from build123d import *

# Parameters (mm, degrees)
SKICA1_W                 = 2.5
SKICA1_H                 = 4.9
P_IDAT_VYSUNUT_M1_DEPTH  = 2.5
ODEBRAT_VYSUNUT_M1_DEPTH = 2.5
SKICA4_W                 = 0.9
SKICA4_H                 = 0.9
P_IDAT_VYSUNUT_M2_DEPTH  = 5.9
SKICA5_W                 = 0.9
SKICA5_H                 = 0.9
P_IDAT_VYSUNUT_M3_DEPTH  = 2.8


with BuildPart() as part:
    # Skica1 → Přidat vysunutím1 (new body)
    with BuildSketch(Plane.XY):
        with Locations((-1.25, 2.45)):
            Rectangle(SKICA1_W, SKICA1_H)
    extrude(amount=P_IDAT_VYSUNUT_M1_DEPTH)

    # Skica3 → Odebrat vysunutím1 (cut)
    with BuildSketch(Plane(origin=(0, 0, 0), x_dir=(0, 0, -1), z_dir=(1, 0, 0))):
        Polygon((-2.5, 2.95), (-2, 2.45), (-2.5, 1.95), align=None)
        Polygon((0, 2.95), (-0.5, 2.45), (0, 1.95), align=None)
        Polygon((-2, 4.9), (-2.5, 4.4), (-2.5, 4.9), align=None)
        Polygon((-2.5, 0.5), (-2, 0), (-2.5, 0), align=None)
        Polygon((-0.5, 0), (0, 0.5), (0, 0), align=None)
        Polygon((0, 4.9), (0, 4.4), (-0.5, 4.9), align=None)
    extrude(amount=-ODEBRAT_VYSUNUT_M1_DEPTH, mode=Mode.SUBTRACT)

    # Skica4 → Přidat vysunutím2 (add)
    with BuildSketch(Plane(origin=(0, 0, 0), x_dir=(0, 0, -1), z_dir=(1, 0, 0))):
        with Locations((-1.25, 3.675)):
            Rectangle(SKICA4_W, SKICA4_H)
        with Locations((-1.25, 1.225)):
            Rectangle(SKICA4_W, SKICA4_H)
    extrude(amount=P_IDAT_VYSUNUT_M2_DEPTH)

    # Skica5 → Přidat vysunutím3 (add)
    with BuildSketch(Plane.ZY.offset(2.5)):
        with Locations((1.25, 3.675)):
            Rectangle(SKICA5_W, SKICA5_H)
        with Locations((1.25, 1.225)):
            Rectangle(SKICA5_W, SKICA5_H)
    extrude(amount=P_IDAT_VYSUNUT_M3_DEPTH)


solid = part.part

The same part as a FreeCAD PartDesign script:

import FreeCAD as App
import Part
import Sketcher


def add_polygon(sketch, points):
    """Adds a closed chain of lines whose ends are joined by coincident constraints."""
    first, n = sketch.GeometryCount, len(points)
    for a, b in zip(points, points[1:] + points[:1]):
        sketch.addGeometry(Part.LineSegment(App.Vector(*a, 0), App.Vector(*b, 0)), False)
    for i in range(n):
        sketch.addConstraint(Sketcher.Constraint("Coincident", first + i, 2, first + (i + 1) % n, 1))

doc = App.newDocument("Part")
body = doc.addObject("PartDesign::Body", "Body")

# Sketch on XY plane
sketch1 = doc.addObject("Sketcher::SketchObject", "Sketch")
body.addObject(sketch1)
sketch1.AttachmentSupport = (doc.XY_Plane, [""])
sketch1.MapMode = "FlatFace"
add_polygon(sketch1, [(-2.5, 4.9), (-2.5, 0), (0, 0), (0, 4.9)])  # lines 0-3
sketch1.addConstraint([
    Sketcher.Constraint("Vertical", 0),
    Sketcher.Constraint("Horizontal", 1),
    Sketcher.Constraint("Vertical", 2),
    Sketcher.Constraint("Horizontal", 3),
    Sketcher.Constraint("Coincident", 1, 2, -1, 1),
    Sketcher.Constraint("DistanceX", 1, 1, 1, 2, 2.5),
    Sketcher.Constraint("DistanceY", 0, 2, 0, 1, 4.9),
])
pad1 = doc.addObject("PartDesign::Pad", "Pad")
body.addObject(pad1)
pad1.Profile = sketch1
pad1.Length = 2.5

# Sketch on YZ plane
sketch2 = doc.addObject("Sketcher::SketchObject", "Sketch001")
body.addObject(sketch2)
sketch2.AttachmentSupport = (doc.YZ_Plane, [""])
sketch2.MapMode = "FlatFace"
add_polygon(sketch2, [(2.45, 2), (2.95, 2.5), (1.95, 2.5)])  # lines 0-2
add_polygon(sketch2, [(2.95, 0), (2.45, 0.5), (1.95, 0)])  # lines 3-5
add_polygon(sketch2, [(4.4, 2.5), (4.9, 2), (4.9, 2.5)])  # lines 6-8
add_polygon(sketch2, [(0, 2), (0.5, 2.5), (0, 2.5)])  # lines 9-11
add_polygon(sketch2, [(0.5, 0), (0, 0.5), (0, 0)])  # lines 12-14
add_polygon(sketch2, [(4.4, 0), (4.9, 0), (4.9, 0.5)])  # lines 15-17
sketch2.addConstraint([
    Sketcher.Constraint("Horizontal", 1),
    Sketcher.Constraint("Horizontal", 5),
    Sketcher.Constraint("Vertical", 7),
    Sketcher.Constraint("Horizontal", 8),
    Sketcher.Constraint("Horizontal", 10),
    Sketcher.Constraint("Vertical", 11),
    Sketcher.Constraint("Vertical", 13),
    Sketcher.Constraint("Horizontal", 14),
    Sketcher.Constraint("Horizontal", 15),
    Sketcher.Constraint("Vertical", 16),
    Sketcher.Constraint("Coincident", 13, 2, -1, 1),
    Sketcher.Constraint("PointOnObject", 4, 2, -1),
    Sketcher.Constraint("PointOnObject", 10, 2, -2),
    Sketcher.Constraint("PointOnObject", 15, 2, -1),
    Sketcher.Constraint("Perpendicular", 0, 2),
    Sketcher.Constraint("Parallel", 2, 3),
    Sketcher.Constraint("Perpendicular", 3, 4),
    Sketcher.Constraint("Perpendicular", 4, 6),
    Sketcher.Constraint("Perpendicular", 6, 9),
    Sketcher.Constraint("Perpendicular", 9, 12),
    Sketcher.Constraint("Perpendicular", 12, 17),
    Sketcher.Constraint("Horizontal", 2, 2, 6, 2),
    Sketcher.Constraint("Horizontal", 1, 2, 7, 2),
    Sketcher.Constraint("Horizontal", 8, 2, 9, 2),
    Sketcher.Constraint("Horizontal", 6, 2, 11, 2),
    Sketcher.Constraint("Horizontal", 3, 2, 12, 2),
    Sketcher.Constraint("Horizontal", 12, 2, 16, 2),
    Sketcher.Constraint("Vertical", 2, 2, 3, 2),
    Sketcher.Constraint("Vertical", 1, 2, 4, 2),
    Sketcher.Constraint("Vertical", 0, 2, 5, 2),
    Sketcher.Constraint("Vertical", 7, 2, 15, 2),
    Sketcher.Constraint("DistanceX", 1, 2, 1, 1, 1.0),
    Sketcher.Constraint("DistanceY", -1, 1, 2, 2, 2.0),
    Sketcher.Constraint("DistanceX", -1, 1, 6, 2, 4.9),
    Sketcher.Constraint("DistanceX", -1, 1, 0, 2, 2.95),
])
pocket1 = doc.addObject("PartDesign::Pocket", "Pocket")
body.addObject(pocket1)
pocket1.Profile = sketch2
pocket1.Length = 2.5

# Sketch on YZ plane
sketch3 = doc.addObject("Sketcher::SketchObject", "Sketch002")
body.addObject(sketch3)
sketch3.AttachmentSupport = (doc.YZ_Plane, [""])
sketch3.MapMode = "FlatFace"
add_polygon(sketch3, [(4.125, 1.7), (3.225, 1.7), (3.225, 0.8), (4.125, 0.8)])  # lines 0-3
add_polygon(sketch3, [(1.675, 1.7), (0.775, 1.7), (0.775, 0.8), (1.675, 0.8)])  # lines 4-7
sketch3.addConstraint([
    Sketcher.Constraint("Horizontal", 0),
    Sketcher.Constraint("Vertical", 1),
    Sketcher.Constraint("Horizontal", 2),
    Sketcher.Constraint("Vertical", 3),
    Sketcher.Constraint("Horizontal", 4),
    Sketcher.Constraint("Vertical", 5),
    Sketcher.Constraint("Horizontal", 6),
    Sketcher.Constraint("Vertical", 7),
    Sketcher.Constraint("Horizontal", 3, 2, 4, 2),
    Sketcher.Constraint("Horizontal", 2, 2, 5, 2),
    Sketcher.Constraint("Equal", 2, 4),
    Sketcher.Constraint("Equal", 6, 1),
    Sketcher.Constraint("DistanceX", 0, 2, 0, 1, 0.9),
    Sketcher.Constraint("DistanceY", -1, 1, 0, 2, 1.7),
    Sketcher.Constraint("DistanceX", 4, 2, 0, 2, 2.45),
    Sketcher.Constraint("DistanceX", -1, 1, 0, 2, 3.225),
])
pad2 = doc.addObject("PartDesign::Pad", "Pad001")
body.addObject(pad2)
pad2.Profile = sketch3
pad2.Length = 5.9

# Sketch on YZ plane
sketch4 = doc.addObject("Sketcher::SketchObject", "Sketch003")
body.addObject(sketch4)
sketch4.AttachmentSupport = (doc.YZ_Plane, [""])
sketch4.MapMode = "FlatFace"
sketch4.AttachmentOffset = App.Placement(App.Vector(0, 0, -2.5), App.Rotation())
add_polygon(sketch4, [(4.125, 0.8), (3.225, 0.8), (3.225, 1.7), (4.125, 1.7)])  # lines 0-3
add_polygon(sketch4, [(1.675, 0.8), (0.775, 0.8), (0.775, 1.7), (1.675, 1.7)])  # lines 4-7
sketch4.addConstraint([
    Sketcher.Constraint("Horizontal", 0),
    Sketcher.Constraint("Vertical", 1),
    Sketcher.Constraint("Horizontal", 2),
    Sketcher.Constraint("Vertical", 3),
    Sketcher.Constraint("Horizontal", 4),
    Sketcher.Constraint("Vertical", 5),
    Sketcher.Constraint("Horizontal", 6),
    Sketcher.Constraint("Vertical", 7),
    Sketcher.Constraint("Horizontal", 3, 2, 4, 2),
    Sketcher.Constraint("Horizontal", 2, 2, 5, 2),
    Sketcher.Constraint("Equal", 2, 4),
    Sketcher.Constraint("Equal", 6, 1),
    Sketcher.Constraint("DistanceX", 0, 2, 0, 1, 0.9),
    Sketcher.Constraint("DistanceY", -1, 1, 0, 2, 0.8),
    Sketcher.Constraint("DistanceX", 4, 2, 0, 2, 2.45),
    Sketcher.Constraint("DistanceX", -1, 1, 0, 2, 3.225),
])
pad3 = doc.addObject("PartDesign::Pad", "Pad002")
body.addObject(pad3)
pad3.Profile = sketch4
pad3.Length = 2.8
pad3.Reversed = True

doc.recompute()
